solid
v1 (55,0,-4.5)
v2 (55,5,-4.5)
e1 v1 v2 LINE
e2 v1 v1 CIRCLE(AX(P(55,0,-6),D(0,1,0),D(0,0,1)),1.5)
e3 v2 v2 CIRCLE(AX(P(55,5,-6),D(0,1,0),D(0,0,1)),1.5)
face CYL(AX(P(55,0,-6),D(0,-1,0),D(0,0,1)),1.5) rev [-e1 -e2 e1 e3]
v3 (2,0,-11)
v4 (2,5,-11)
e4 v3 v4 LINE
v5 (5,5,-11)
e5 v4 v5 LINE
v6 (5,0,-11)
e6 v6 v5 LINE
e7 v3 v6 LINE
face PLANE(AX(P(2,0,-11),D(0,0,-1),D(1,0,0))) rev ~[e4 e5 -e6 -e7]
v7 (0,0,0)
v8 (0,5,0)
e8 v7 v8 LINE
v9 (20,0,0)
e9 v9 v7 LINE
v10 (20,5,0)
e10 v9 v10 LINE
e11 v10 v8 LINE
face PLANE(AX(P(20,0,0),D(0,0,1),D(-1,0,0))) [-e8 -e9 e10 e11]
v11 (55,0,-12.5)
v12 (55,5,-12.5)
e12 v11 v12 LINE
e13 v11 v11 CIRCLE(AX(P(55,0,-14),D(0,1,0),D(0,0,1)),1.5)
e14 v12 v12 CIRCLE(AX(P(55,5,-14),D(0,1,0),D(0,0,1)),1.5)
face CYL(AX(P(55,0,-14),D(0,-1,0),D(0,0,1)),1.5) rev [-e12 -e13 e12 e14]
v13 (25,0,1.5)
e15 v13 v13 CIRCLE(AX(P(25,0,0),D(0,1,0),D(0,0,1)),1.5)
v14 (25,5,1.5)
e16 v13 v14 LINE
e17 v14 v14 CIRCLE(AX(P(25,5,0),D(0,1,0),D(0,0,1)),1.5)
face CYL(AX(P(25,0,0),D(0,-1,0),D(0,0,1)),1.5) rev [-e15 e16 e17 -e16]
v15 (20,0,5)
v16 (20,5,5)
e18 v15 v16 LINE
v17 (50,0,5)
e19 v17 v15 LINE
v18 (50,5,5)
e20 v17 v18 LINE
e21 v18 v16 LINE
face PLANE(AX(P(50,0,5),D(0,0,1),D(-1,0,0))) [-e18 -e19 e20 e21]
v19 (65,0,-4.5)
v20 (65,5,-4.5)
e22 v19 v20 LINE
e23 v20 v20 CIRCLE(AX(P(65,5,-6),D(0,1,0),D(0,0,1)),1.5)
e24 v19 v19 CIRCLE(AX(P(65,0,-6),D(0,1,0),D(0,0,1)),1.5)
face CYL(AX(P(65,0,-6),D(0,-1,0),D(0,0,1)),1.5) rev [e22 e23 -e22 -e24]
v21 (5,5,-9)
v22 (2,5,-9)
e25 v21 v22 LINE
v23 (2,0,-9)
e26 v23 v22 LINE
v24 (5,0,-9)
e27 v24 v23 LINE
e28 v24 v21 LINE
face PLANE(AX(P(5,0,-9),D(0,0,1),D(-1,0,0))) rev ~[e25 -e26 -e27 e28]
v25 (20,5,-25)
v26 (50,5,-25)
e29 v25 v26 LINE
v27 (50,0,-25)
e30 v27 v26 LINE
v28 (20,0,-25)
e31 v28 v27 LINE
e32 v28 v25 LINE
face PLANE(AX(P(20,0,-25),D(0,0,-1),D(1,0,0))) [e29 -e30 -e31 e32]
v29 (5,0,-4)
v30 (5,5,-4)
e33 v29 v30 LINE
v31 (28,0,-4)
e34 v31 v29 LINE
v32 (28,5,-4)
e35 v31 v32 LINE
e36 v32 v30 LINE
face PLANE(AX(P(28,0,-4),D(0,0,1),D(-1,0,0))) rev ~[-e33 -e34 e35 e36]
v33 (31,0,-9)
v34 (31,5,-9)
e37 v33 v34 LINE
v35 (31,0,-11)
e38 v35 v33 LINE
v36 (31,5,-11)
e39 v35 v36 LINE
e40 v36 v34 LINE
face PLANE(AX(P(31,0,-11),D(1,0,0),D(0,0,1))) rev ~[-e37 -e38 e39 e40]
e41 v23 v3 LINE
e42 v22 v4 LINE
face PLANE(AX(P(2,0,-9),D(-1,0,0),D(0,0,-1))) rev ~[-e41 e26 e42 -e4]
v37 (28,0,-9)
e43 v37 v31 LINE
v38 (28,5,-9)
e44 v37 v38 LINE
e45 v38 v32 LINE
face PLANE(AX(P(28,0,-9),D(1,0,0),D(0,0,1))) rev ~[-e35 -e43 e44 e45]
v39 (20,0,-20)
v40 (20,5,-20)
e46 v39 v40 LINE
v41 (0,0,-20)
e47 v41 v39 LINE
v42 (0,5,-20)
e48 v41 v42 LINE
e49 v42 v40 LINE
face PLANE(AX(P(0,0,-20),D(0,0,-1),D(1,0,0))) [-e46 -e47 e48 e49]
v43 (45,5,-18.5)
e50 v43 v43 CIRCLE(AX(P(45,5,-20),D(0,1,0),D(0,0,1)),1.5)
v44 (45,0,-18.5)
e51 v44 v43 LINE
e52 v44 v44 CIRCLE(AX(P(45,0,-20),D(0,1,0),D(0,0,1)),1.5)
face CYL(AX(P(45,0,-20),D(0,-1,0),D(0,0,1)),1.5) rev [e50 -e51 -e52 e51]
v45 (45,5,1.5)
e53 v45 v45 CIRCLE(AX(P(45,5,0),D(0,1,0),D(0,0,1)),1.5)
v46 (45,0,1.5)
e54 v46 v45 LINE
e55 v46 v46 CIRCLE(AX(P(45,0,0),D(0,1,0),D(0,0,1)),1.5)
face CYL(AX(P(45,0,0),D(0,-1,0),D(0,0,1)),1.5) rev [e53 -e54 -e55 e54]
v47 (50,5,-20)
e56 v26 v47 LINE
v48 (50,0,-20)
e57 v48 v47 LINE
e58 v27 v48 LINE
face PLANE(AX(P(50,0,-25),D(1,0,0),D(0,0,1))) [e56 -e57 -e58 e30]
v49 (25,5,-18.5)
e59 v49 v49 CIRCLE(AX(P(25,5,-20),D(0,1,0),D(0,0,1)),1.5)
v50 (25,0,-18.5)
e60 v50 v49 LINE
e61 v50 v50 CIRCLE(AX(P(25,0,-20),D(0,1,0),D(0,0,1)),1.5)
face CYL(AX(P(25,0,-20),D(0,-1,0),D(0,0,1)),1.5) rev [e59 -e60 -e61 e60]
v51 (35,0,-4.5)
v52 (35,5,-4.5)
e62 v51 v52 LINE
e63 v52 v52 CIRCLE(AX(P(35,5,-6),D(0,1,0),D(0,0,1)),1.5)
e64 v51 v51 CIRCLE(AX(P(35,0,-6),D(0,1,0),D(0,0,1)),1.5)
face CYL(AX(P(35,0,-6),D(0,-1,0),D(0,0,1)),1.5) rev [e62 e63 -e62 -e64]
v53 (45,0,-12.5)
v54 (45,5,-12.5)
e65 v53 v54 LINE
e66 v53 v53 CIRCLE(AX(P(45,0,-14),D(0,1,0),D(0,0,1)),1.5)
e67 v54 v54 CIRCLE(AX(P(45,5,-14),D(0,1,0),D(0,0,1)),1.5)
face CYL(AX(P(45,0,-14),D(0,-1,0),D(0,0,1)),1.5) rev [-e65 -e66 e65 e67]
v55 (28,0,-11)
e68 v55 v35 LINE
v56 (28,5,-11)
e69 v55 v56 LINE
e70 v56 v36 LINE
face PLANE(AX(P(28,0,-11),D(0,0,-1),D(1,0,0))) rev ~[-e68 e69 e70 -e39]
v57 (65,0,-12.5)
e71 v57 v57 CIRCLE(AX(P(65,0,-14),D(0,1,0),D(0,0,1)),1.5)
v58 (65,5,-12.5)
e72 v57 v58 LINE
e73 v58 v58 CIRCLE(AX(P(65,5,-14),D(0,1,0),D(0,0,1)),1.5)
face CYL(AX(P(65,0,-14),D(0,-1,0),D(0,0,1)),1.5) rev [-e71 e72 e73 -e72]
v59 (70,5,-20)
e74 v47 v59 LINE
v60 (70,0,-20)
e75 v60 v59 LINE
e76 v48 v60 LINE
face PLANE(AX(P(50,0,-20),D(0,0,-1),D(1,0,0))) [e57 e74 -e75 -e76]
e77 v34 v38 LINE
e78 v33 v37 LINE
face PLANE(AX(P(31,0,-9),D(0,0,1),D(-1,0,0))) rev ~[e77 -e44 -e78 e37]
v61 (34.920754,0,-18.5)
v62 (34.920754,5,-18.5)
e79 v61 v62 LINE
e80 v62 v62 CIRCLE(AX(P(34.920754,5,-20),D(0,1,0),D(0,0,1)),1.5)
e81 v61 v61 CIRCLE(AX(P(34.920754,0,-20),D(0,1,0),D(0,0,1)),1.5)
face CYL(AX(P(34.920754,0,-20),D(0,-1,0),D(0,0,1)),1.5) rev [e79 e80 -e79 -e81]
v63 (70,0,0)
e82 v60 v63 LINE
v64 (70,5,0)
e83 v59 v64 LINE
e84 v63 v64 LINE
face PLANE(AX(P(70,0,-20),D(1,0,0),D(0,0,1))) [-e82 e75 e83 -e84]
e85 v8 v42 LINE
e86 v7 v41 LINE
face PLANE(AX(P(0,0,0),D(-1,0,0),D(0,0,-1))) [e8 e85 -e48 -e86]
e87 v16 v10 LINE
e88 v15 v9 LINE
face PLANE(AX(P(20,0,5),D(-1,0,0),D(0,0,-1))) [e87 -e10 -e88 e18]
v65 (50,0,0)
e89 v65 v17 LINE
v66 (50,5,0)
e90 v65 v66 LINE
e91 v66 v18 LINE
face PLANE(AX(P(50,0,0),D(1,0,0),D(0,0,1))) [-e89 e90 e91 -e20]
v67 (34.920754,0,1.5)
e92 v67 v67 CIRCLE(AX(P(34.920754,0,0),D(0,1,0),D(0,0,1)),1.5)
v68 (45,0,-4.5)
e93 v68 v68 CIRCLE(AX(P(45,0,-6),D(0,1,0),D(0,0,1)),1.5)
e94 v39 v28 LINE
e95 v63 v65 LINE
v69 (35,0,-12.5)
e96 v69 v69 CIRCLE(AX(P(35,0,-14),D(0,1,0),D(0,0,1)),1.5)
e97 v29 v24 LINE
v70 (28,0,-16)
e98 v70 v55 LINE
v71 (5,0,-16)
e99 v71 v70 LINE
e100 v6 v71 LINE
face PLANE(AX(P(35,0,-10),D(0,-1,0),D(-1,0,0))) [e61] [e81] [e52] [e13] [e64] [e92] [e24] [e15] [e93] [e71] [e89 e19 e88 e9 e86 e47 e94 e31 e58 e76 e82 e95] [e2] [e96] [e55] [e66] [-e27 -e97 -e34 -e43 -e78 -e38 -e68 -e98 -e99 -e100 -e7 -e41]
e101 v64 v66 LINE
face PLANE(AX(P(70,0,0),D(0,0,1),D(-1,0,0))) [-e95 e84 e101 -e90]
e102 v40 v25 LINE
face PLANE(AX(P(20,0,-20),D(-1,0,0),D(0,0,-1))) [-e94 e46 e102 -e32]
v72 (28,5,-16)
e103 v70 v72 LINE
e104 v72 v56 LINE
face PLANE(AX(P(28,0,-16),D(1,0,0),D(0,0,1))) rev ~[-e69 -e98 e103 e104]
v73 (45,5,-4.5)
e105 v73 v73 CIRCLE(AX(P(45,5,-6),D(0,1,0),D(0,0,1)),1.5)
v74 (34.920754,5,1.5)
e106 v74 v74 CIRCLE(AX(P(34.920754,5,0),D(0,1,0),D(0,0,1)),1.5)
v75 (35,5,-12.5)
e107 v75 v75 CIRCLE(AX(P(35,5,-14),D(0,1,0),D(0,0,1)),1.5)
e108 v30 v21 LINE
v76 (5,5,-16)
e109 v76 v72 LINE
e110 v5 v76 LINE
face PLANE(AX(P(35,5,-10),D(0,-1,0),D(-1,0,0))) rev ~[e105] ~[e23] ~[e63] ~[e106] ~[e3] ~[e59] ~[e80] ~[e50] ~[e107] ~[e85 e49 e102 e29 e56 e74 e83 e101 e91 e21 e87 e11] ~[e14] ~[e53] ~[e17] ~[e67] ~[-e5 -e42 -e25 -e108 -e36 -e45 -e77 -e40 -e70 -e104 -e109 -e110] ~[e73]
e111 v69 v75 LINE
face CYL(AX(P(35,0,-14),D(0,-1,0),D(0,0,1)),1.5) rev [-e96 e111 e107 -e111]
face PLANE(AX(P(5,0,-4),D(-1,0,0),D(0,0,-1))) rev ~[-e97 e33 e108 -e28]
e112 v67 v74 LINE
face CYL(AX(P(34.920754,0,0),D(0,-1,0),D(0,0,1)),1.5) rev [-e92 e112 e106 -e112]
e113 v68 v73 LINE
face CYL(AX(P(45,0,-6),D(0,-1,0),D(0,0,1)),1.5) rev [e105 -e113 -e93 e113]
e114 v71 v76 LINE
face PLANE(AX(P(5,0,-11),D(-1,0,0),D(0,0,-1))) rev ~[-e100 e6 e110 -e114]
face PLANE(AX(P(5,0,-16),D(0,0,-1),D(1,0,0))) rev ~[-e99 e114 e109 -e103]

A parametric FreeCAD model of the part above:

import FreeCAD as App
import Part
import Sketcher

doc = App.newDocument("Part")
body = doc.addObject("PartDesign::Body", "Body")

# Sketch on XZ plane
sketch1 = body.newObject("Sketcher::SketchObject", "Sketch")
sketch1.AttachmentSupport = (doc.getObject("XZ_Plane"), [""])
sketch1.MapMode = "FlatFace"
sketch1.addGeometry(Part.LineSegment(App.Vector(70, -20, 0), App.Vector(50, -20, 0)), False)
sketch1.addGeometry(Part.LineSegment(App.Vector(50, -20, 0), App.Vector(50, -25, 0)), False)
sketch1.addGeometry(Part.LineSegment(App.Vector(50, -25, 0), App.Vector(20, -25, 0)), False)
sketch1.addGeometry(Part.LineSegment(App.Vector(20, -25, 0), App.Vector(20, -20, 0)), False)
sketch1.addGeometry(Part.LineSegment(App.Vector(20, -20, 0), App.Vector(0, -20, 0)), False)
sketch1.addGeometry(Part.LineSegment(App.Vector(0, -20, 0), App.Vector(0, 0, 0)), False)
sketch1.addGeometry(Part.LineSegment(App.Vector(0, 0, 0), App.Vector(20, 0, 0)), False)
sketch1.addGeometry(Part.LineSegment(App.Vector(20, 0, 0), App.Vector(20, 5, 0)), False)
sketch1.addGeometry(Part.LineSegment(App.Vector(20, 5, 0), App.Vector(50, 5, 0)), False)
sketch1.addGeometry(Part.LineSegment(App.Vector(50, 5, 0), App.Vector(50, 0, 0)), False)
sketch1.addGeometry(Part.LineSegment(App.Vector(50, 0, 0), App.Vector(70, 0, 0)), False)
sketch1.addGeometry(Part.LineSegment(App.Vector(70, 0, 0), App.Vector(70, -20, 0)), False)
sketch1.addGeometry(Part.Circle(App.Vector(45, 0, 0), App.Vector(0, 0, 1), 1.5), False)
sketch1.addGeometry(Part.Circle(App.Vector(34.9, 0, 0), App.Vector(0, 0, 1), 1.5), False)
sketch1.addGeometry(Part.Circle(App.Vector(65, -6, 0), App.Vector(0, 0, 1), 1.5), False)
sketch1.addGeometry(Part.Circle(App.Vector(55, -6, 0), App.Vector(0, 0, 1), 1.5), False)
sketch1.addGeometry(Part.Circle(App.Vector(45, -6, 0), App.Vector(0, 0, 1), 1.5), False)
sketch1.addGeometry(Part.Circle(App.Vector(35, -6, 0), App.Vector(0, 0, 1), 1.5), False)
sketch1.addGeometry(Part.Circle(App.Vector(25, 0, 0), App.Vector(0, 0, 1), 1.5), False)
sketch1.addGeometry(Part.Circle(App.Vector(65, -14, 0), App.Vector(0, 0, 1), 1.5), False)
sketch1.addGeometry(Part.Circle(App.Vector(55, -14, 0), App.Vector(0, 0, 1), 1.5), False)
sketch1.addGeometry(Part.Circle(App.Vector(45, -14, 0), App.Vector(0, 0, 1), 1.5), False)
sketch1.addGeometry(Part.Circle(App.Vector(35, -14, 0), App.Vector(0, 0, 1), 1.5), False)
sketch1.addGeometry(Part.Circle(App.Vector(45, -20, 0), App.Vector(0, 0, 1), 1.5), False)
sketch1.addGeometry(Part.Circle(App.Vector(34.9, -20, 0), App.Vector(0, 0, 1), 1.5), False)
sketch1.addGeometry(Part.LineSegment(App.Vector(5, -16, 0), App.Vector(28, -16, 0)), False)
sketch1.addGeometry(Part.LineSegment(App.Vector(28, -16, 0), App.Vector(28, -11, 0)), False)
sketch1.addGeometry(Part.LineSegment(App.Vector(28, -11, 0), App.Vector(31, -11, 0)), False)
sketch1.addGeometry(Part.LineSegment(App.Vector(31, -11, 0), App.Vector(31, -9, 0)), False)
sketch1.addGeometry(Part.LineSegment(App.Vector(31, -9, 0), App.Vector(28, -9, 0)), False)
sketch1.addGeometry(Part.LineSegment(App.Vector(28, -9, 0), App.Vector(28, -4, 0)), False)
sketch1.addGeometry(Part.LineSegment(App.Vector(28, -4, 0), App.Vector(5, -4, 0)), False)
sketch1.addGeometry(Part.LineSegment(App.Vector(5, -4, 0), App.Vector(5, -9, 0)), False)
sketch1.addGeometry(Part.LineSegment(App.Vector(5, -9, 0), App.Vector(2, -9, 0)), False)
sketch1.addGeometry(Part.LineSegment(App.Vector(2, -9, 0), App.Vector(2, -11, 0)), False)
sketch1.addGeometry(Part.LineSegment(App.Vector(2, -11, 0), App.Vector(5, -11, 0)), False)
sketch1.addGeometry(Part.LineSegment(App.Vector(5, -11, 0), App.Vector(5, -16, 0)), False)
sketch1.addGeometry(Part.Circle(App.Vector(25, -20, 0), App.Vector(0, 0, 1), 1.5), False)
sketch1.addConstraint(Sketcher.Constraint("Coincident", 0, 2, 1, 1))
sketch1.addConstraint(Sketcher.Constraint("Coincident", 1, 2, 2, 1))
sketch1.addConstraint(Sketcher.Constraint("Coincident", 2, 2, 3, 1))
sketch1.addConstraint(Sketcher.Constraint("Coincident", 3, 2, 4, 1))
sketch1.addConstraint(Sketcher.Constraint("Coincident", 4, 2, 5, 1))
sketch1.addConstraint(Sketcher.Constraint("Coincident", 5, 2, 6, 1))
sketch1.addConstraint(Sketcher.Constraint("Coincident", 6, 2, 7, 1))
sketch1.addConstraint(Sketcher.Constraint("Coincident", 7, 2, 8, 1))
sketch1.addConstraint(Sketcher.Constraint("Coincident", 8, 2, 9, 1))
sketch1.addConstraint(Sketcher.Constraint("Coincident", 9, 2, 10, 1))
sketch1.addConstraint(Sketcher.Constraint("Coincident", 10, 2, 11, 1))
sketch1.addConstraint(Sketcher.Constraint("Coincident", 11, 2, 0, 1))
sketch1.addConstraint(Sketcher.Constraint("Coincident", 25, 2, 26, 1))
sketch1.addConstraint(Sketcher.Constraint("Coincident", 26, 2, 27, 1))
sketch1.addConstraint(Sketcher.Constraint("Coincident", 27, 2, 28, 1))
sketch1.addConstraint(Sketcher.Constraint("Coincident", 28, 2, 29, 1))
sketch1.addConstraint(Sketcher.Constraint("Coincident", 29, 2, 30, 1))
sketch1.addConstraint(Sketcher.Constraint("Coincident", 30, 2, 31, 1))
sketch1.addConstraint(Sketcher.Constraint("Coincident", 31, 2, 32, 1))
sketch1.addConstraint(Sketcher.Constraint("Coincident", 32, 2, 33, 1))
sketch1.addConstraint(Sketcher.Constraint("Coincident", 33, 2, 34, 1))
sketch1.addConstraint(Sketcher.Constraint("Coincident", 34, 2, 35, 1))
sketch1.addConstraint(Sketcher.Constraint("Coincident", 35, 2, 36, 1))
sketch1.addConstraint(Sketcher.Constraint("Coincident", 36, 2, 25, 1))
sketch1.addConstraint(Sketcher.Constraint("Horizontal", 0))
sketch1.addConstraint(Sketcher.Constraint("Vertical", 1))
sketch1.addConstraint(Sketcher.Constraint("Horizontal", 2))
sketch1.addConstraint(Sketcher.Constraint("Vertical", 3))
sketch1.addConstraint(Sketcher.Constraint("Horizontal", 4))
sketch1.addConstraint(Sketcher.Constraint("Vertical", 5))
sketch1.addConstraint(Sketcher.Constraint("Horizontal", 6))
sketch1.addConstraint(Sketcher.Constraint("Vertical", 7))
sketch1.addConstraint(Sketcher.Constraint("Horizontal", 8))
sketch1.addConstraint(Sketcher.Constraint("Vertical", 9))
sketch1.addConstraint(Sketcher.Constraint("Horizontal", 10))
sketch1.addConstraint(Sketcher.Constraint("Vertical", 11))
sketch1.addConstraint(Sketcher.Constraint("Horizontal", 25))
sketch1.addConstraint(Sketcher.Constraint("Vertical", 26))
sketch1.addConstraint(Sketcher.Constraint("Horizontal", 27))
sketch1.addConstraint(Sketcher.Constraint("Vertical", 28))
sketch1.addConstraint(Sketcher.Constraint("Horizontal", 29))
sketch1.addConstraint(Sketcher.Constraint("Vertical", 30))
sketch1.addConstraint(Sketcher.Constraint("Horizontal", 31))
sketch1.addConstraint(Sketcher.Constraint("Vertical", 32))
sketch1.addConstraint(Sketcher.Constraint("Horizontal", 33))
sketch1.addConstraint(Sketcher.Constraint("Vertical", 34))
sketch1.addConstraint(Sketcher.Constraint("Horizontal", 35))
sketch1.addConstraint(Sketcher.Constraint("Vertical", 36))
sketch1.addConstraint(Sketcher.Constraint("Coincident", 5, 2, -1, 1))
sketch1.addConstraint(Sketcher.Constraint("Equal", 12, 13))
sketch1.addConstraint(Sketcher.Constraint("Equal", 13, 14))
sketch1.addConstraint(Sketcher.Constraint("Equal", 14, 15))
sketch1.addConstraint(Sketcher.Constraint("Equal", 15, 16))
sketch1.addConstraint(Sketcher.Constraint("Equal", 16, 17))
sketch1.addConstraint(Sketcher.Constraint("Equal", 17, 18))
sketch1.addConstraint(Sketcher.Constraint("Equal", 18, 19))
sketch1.addConstraint(Sketcher.Constraint("Equal", 19, 20))
sketch1.addConstraint(Sketcher.Constraint("Equal", 20, 21))
sketch1.addConstraint(Sketcher.Constraint("Equal", 21, 22))
sketch1.addConstraint(Sketcher.Constraint("Equal", 22, 23))
sketch1.addConstraint(Sketcher.Constraint("Equal", 23, 24))
sketch1.addConstraint(Sketcher.Constraint("Equal", 24, 37))
sketch1.addConstraint(Sketcher.Constraint("PointOnObject", 12, 3, -1))
sketch1.addConstraint(Sketcher.Constraint("PointOnObject", 13, 3, -1))
sketch1.addConstraint(Sketcher.Constraint("PointOnObject", 18, 3, -1))
sketch1.addConstraint(Sketcher.Constraint("PointOnObject", 9, 2, -1))
sketch1.addConstraint(Sketcher.Constraint("Horizontal", 14, 3, 15, 3))
sketch1.addConstraint(Sketcher.Constraint("Horizontal", 15, 3, 16, 3))
sketch1.addConstraint(Sketcher.Constraint("Horizontal", 16, 3, 17, 3))
sketch1.addConstraint(Sketcher.Constraint("Horizontal", 19, 3, 20, 3))
sketch1.addConstraint(Sketcher.Constraint("Horizontal", 20, 3, 21, 3))
sketch1.addConstraint(Sketcher.Constraint("Horizontal", 21, 3, 22, 3))
sketch1.addConstraint(Sketcher.Constraint("Horizontal", 23, 3, 24, 3))
sketch1.addConstraint(Sketcher.Constraint("Horizontal", 24, 3, 37, 3))
sketch1.addConstraint(Sketcher.Constraint("Horizontal", 37, 3, 0, 2))
sketch1.addConstraint(Sketcher.Constraint("Horizontal", 0, 2, 3, 2))
sketch1.addConstraint(Sketcher.Constraint("Horizontal", 29, 2, 32, 2))
sketch1.addConstraint(Sketcher.Constraint("Horizontal", 27, 2, 34, 2))
sketch1.addConstraint(Sketcher.Constraint("Vertical", 12, 3, 16, 3))
sketch1.addConstraint(Sketcher.Constraint("Vertical", 14, 3, 19, 3))
sketch1.addConstraint(Sketcher.Constraint("Vertical", 15, 3, 20, 3))
sketch1.addConstraint(Sketcher.Constraint("Vertical", 16, 3, 21, 3))
sketch1.addConstraint(Sketcher.Constraint("Vertical", 17, 3, 22, 3))
sketch1.addConstraint(Sketcher.Constraint("Vertical", 21, 3, 23, 3))
sketch1.addConstraint(Sketcher.Constraint("Vertical", 13, 3, 24, 3))
sketch1.addConstraint(Sketcher.Constraint("Vertical", 18, 3, 37, 3))
sketch1.addConstraint(Sketcher.Constraint("Vertical", 3, 2, 6, 2))
sketch1.addConstraint(Sketcher.Constraint("Vertical", 1, 2, 8, 2))
sketch1.addConstraint(Sketcher.Constraint("Vertical", 26, 2, 29, 2))
sketch1.addConstraint(Sketcher.Constraint("Vertical", 32, 2, 35, 2))
sketch1.addConstraint(Sketcher.Constraint("Equal", 0, 4))
sketch1.addConstraint(Sketcher.Constraint("Equal", 29, 33))
sketch1.addConstraint(Sketcher.Constraint("Equal", 10, 5))
sketch1.addConstraint(Sketcher.Constraint("Equal", 3, 7))
sketch1.addConstraint(Sketcher.Constraint("Equal", 9, 26))
sketch1.addConstraint(Sketcher.Constraint("Equal", 26, 30))
sketch1.addConstraint(Sketcher.Constraint("Diameter", 12, 3.0))
sketch1.addConstraint(Sketcher.Constraint("DistanceX", 0, 2, 0, 1, 20.0))
sketch1.addConstraint(Sketcher.Constraint("DistanceX", 2, 2, 2, 1, 30.0))
sketch1.addConstraint(Sketcher.Constraint("DistanceX", 25, 1, 25, 2, 23.0))
sketch1.addConstraint(Sketcher.Constraint("DistanceX", 27, 1, 27, 2, 3.0))
sketch1.addConstraint(Sketcher.Constraint("DistanceY", 1, 2, 1, 1, 5.0))
sketch1.addConstraint(Sketcher.Constraint("DistanceY", 28, 1, 28, 2, 2.0))
sketch1.addConstraint(Sketcher.Constraint("DistanceX", -1, 1, 12, 3, 45.0))
sketch1.addConstraint(Sketcher.Constraint("DistanceX", -1, 1, 14, 3, 65.0))
sketch1.addConstraint(Sketcher.Constraint("DistanceY", 14, 3, -1, 1, 6.0))
sketch1.addConstraint(Sketcher.Constraint("DistanceX", -1, 1, 15, 3, 55.0))
sketch1.addConstraint(Sketcher.Constraint("DistanceX", -1, 1, 17, 3, 35.0))
sketch1.addConstraint(Sketcher.Constraint("DistanceX", -1, 1, 18, 3, 25.0))
sketch1.addConstraint(Sketcher.Constraint("DistanceY", 19, 3, -1, 1, 14.0))
sketch1.addConstraint(Sketcher.Constraint("DistanceX", -1, 1, 25, 2, 28.0))
sketch1.addConstraint(Sketcher.Constraint("DistanceY", 25, 2, -1, 1, 16.0))
sketch1.addConstraint(Sketcher.Constraint("DistanceX", -1, 1, 13, 3, 34.920754))
pad1 = body.newObject("PartDesign::Pad", "Pad")
pad1.Profile = sketch1
pad1.Length = 5
pad1.Reversed = True

doc.recompute()
